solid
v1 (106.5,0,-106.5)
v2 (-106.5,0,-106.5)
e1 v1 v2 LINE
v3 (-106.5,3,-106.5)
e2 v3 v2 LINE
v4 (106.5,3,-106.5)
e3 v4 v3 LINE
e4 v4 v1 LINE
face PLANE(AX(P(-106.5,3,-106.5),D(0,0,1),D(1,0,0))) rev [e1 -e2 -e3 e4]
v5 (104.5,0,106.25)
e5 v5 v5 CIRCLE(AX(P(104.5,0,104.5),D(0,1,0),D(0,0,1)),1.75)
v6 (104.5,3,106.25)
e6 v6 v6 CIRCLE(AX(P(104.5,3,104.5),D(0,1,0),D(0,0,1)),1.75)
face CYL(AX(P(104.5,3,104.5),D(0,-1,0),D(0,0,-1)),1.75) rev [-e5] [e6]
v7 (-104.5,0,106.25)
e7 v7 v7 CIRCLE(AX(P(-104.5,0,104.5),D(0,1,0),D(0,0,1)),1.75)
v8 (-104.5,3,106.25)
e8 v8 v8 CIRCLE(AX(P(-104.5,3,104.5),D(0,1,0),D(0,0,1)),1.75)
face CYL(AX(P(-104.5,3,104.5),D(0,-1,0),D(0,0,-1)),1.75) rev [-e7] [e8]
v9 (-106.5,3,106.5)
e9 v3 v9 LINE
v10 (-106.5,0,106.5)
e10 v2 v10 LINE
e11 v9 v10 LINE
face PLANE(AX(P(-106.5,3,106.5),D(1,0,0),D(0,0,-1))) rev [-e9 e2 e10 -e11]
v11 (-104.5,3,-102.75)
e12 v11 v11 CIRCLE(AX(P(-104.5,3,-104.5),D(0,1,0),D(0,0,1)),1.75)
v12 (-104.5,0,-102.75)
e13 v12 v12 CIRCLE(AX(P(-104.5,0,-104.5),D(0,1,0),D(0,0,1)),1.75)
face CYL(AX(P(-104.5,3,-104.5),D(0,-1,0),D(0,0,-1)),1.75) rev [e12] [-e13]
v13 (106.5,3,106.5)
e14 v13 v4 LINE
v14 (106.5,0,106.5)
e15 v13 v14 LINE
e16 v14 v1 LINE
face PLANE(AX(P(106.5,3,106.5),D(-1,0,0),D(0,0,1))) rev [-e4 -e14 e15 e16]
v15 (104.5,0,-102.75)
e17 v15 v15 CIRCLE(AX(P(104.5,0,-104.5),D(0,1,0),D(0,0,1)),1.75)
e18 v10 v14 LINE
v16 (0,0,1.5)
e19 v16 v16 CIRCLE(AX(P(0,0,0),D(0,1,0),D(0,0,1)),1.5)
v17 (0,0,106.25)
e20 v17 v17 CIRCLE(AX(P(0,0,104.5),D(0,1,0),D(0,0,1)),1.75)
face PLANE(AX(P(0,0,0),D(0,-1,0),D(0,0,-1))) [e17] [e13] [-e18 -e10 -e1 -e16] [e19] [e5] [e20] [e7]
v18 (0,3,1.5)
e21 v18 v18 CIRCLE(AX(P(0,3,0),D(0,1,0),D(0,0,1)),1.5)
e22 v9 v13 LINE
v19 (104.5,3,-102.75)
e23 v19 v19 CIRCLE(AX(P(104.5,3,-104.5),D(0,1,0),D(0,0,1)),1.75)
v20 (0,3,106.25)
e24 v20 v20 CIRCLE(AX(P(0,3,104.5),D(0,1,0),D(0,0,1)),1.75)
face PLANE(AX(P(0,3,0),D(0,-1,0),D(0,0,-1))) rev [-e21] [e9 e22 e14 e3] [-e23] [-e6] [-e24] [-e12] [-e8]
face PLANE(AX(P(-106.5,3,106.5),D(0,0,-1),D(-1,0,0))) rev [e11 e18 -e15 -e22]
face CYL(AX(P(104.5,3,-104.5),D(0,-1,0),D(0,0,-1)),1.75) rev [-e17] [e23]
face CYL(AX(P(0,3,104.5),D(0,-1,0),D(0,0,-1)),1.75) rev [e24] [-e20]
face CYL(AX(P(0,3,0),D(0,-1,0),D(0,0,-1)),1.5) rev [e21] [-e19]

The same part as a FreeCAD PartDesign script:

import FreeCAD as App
import Part
import Sketcher

V = App.Vector

doc = App.newDocument("Part")
body = doc.addObject("PartDesign::Body", "Body")

# Sketch on XZ plane
sketch1 = body.newObject("Sketcher::SketchObject", "Sketch")
sketch1.AttachmentSupport = (doc.getObject("XZ_Plane"), [""])
sketch1.MapMode = "FlatFace"
sketch1.addGeometry([
    Part.LineSegment(V(-106.5, -106.5, 0), V(-106.5, 106.5, 0)),  # 0
    Part.LineSegment(V(-106.5, 106.5, 0), V(106.5, 106.5, 0)),  # 1
    Part.LineSegment(V(106.5, 106.5, 0), V(106.5, -106.5, 0)),  # 2
    Part.LineSegment(V(106.5, -106.5, 0), V(-106.5, -106.5, 0)),  # 3
    Part.Circle(V(-104.5, 104.5, 0), V(0, 0, 1), 1.75),  # 4
    Part.Circle(V(0, 104.5, 0), V(0, 0, 1), 1.75),  # 5
    Part.Circle(V(0, 0, 0), V(0, 0, 1), 1.5),  # 6
    Part.Circle(V(104.5, 104.5, 0), V(0, 0, 1), 1.75),  # 7
    Part.Circle(V(-104.5, -104.5, 0), V(0, 0, 1), 1.75),  # 8
    Part.Circle(V(104.5, -104.5, 0), V(0, 0, 1), 1.75),  # 9
], False)
sketch1.addConstraint([
    Sketcher.Constraint("Coincident", 0, 2, 1, 1),
    Sketcher.Constraint("Coincident", 1, 2, 2, 1),
    Sketcher.Constraint("Coincident", 2, 2, 3, 1),
    Sketcher.Constraint("Coincident", 3, 2, 0, 1),
    Sketcher.Constraint("Vertical", 0),
    Sketcher.Constraint("Horizontal", 1),
    Sketcher.Constraint("Vertical", 2),
    Sketcher.Constraint("Horizontal", 3),
    Sketcher.Constraint("Coincident", 6, 3, -1, 1),
    Sketcher.Constraint("Equal", 4, 5),
    Sketcher.Constraint("Equal", 5, 7),
    Sketcher.Constraint("Equal", 7, 8),
    Sketcher.Constraint("Equal", 8, 9),
    Sketcher.Constraint("Symmetric", 7, 3, 8, 3, -1, 1),
    Sketcher.Constraint("Symmetric", 4, 3, 9, 3, -1, 1),
    Sketcher.Constraint("Symmetric", 0, 2, 2, 2, -1, 1),
    Sketcher.Constraint("Symmetric", 4, 3, 7, 3, -2),
    Sketcher.Constraint("PointOnObject", 5, 3, -2),
    Sketcher.Constraint("Horizontal", 4, 3, 5, 3),
    Sketcher.Constraint("Equal", 3, 0),
    Sketcher.Constraint("Diameter", 6, 3.0),
    Sketcher.Constraint("Diameter", 4, 3.5),
    Sketcher.Constraint("DistanceX", 1, 1, 1, 2, 213.0),
    Sketcher.Constraint("DistanceX", 4, 3, 7, 3, 209.0),
    Sketcher.Constraint("DistanceY", 8, 3, 4, 3, 209.0),
])
pad1 = body.newObject("PartDesign::Pad", "Pad")
pad1.Profile = sketch1
pad1.Length = 3
pad1.Reversed = True

doc.recompute()
